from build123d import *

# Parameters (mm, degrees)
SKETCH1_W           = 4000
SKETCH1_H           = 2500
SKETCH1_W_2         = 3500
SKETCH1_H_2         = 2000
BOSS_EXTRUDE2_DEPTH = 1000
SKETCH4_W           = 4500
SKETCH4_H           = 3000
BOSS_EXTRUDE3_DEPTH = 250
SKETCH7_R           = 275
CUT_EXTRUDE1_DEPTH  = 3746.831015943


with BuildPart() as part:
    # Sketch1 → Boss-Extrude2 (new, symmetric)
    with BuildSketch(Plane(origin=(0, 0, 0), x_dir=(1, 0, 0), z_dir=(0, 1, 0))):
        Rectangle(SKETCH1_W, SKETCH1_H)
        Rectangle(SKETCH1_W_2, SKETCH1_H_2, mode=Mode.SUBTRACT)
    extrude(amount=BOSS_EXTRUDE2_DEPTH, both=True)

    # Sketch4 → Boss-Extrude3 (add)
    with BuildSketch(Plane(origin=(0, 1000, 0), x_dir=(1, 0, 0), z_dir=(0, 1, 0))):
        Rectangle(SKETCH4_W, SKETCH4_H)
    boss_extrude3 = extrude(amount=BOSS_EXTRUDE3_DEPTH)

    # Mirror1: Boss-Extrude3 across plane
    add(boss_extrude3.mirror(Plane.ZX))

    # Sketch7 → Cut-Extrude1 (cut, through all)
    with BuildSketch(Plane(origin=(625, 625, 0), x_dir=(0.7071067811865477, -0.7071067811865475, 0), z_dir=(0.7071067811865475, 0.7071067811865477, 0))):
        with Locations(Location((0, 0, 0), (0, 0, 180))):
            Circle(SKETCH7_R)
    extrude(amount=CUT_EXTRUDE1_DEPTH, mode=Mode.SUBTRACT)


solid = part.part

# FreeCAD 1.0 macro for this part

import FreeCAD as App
import Part
import Sketcher

V = App.Vector


def add_polygon(sketch, points):
    """Adds a closed chain of lines whose ends are joined by coincident constraints."""
    first, n = sketch.GeometryCount, len(points)
    for a, b in zip(points, points[1:] + points[:1]):
        sketch.addGeometry(Part.LineSegment(App.Vector(*a, 0), App.Vector(*b, 0)), False)
    for i in range(n):
        sketch.addConstraint(Sketcher.Constraint("Coincident", first + i, 2, first + (i + 1) % n, 1))

doc = App.newDocument("Part")
body = doc.addObject("PartDesign::Body", "Body")

# Sketch on XZ plane
sketch1 = body.newObject("Sketcher::SketchObject", "Sketch")
sketch1.AttachmentSupport = (doc.getObject("XZ_Plane"), [""])
sketch1.MapMode = "FlatFace"
add_polygon(sketch1, [(-2000, -1250), (-2000, 1250), (2000, 1250), (2000, -1250)])  # lines 0-3
add_polygon(sketch1, [(1750, 1000), (-1750, 1000), (-1750, -1000), (1750, -1000)])  # lines 4-7
sketch1.addConstraint(Sketcher.Constraint("Vertical", 0))
sketch1.addConstraint(Sketcher.Constraint("Horizontal", 1))
sketch1.addConstraint(Sketcher.Constraint("Vertical", 2))
sketch1.addConstraint(Sketcher.Constraint("Horizontal", 3))
sketch1.addConstraint(Sketcher.Constraint("Horizontal", 4))
sketch1.addConstraint(Sketcher.Constraint("Vertical", 5))
sketch1.addConstraint(Sketcher.Constraint("Horizontal", 6))
sketch1.addConstraint(Sketcher.Constraint("Vertical", 7))
sketch1.addConstraint(Sketcher.Constraint("Symmetric", 0, 2, 2, 2, -1, 1))
sketch1.addConstraint(Sketcher.Constraint("Symmetric", 4, 2, 6, 2, -1, 1))
sketch1.addConstraint(Sketcher.Constraint("DistanceX", 1, 1, 1, 2, 4000.0))
sketch1.addConstraint(Sketcher.Constraint("DistanceX", 4, 2, 4, 1, 3500.0))
sketch1.addConstraint(Sketcher.Constraint("DistanceY", 0, 1, 0, 2, 2500.0))
sketch1.addConstraint(Sketcher.Constraint("DistanceY", 5, 2, 5, 1, 2000.0))
pad1 = body.newObject("PartDesign::Pad", "Pad")
pad1.Profile = sketch1
pad1.Length = 2000
pad1.Midplane = True

# Sketch on XZ plane
sketch2 = body.newObject("Sketcher::SketchObject", "Sketch001")
sketch2.AttachmentSupport = (doc.getObject("XZ_Plane"), [""])
sketch2.MapMode = "FlatFace"
sketch2.AttachmentOffset = App.Placement(V(0, 0, -1000), App.Rotation())
add_polygon(sketch2, [(-2250, -1500), (-2250, 1500), (2250, 1500), (2250, -1500)])  # lines 0-3
sketch2.addConstraint(Sketcher.Constraint("Vertical", 0))
sketch2.addConstraint(Sketcher.Constraint("Horizontal", 1))
sketch2.addConstraint(Sketcher.Constraint("Vertical", 2))
sketch2.addConstraint(Sketcher.Constraint("Horizontal", 3))
sketch2.addConstraint(Sketcher.Constraint("Symmetric", 0, 2, 2, 2, -1, 1))
sketch2.addConstraint(Sketcher.Constraint("DistanceX", 1, 1, 1, 2, 4500.0))
sketch2.addConstraint(Sketcher.Constraint("DistanceY", 0, 1, 0, 2, 3000.0))
pad2 = body.newObject("PartDesign::Pad", "Pad001")
pad2.Profile = sketch2
pad2.Length = 250
pad2.Reversed = True
doc.recompute()

mirrored = body.newObject("PartDesign::Mirrored", "Mirrored")
mirrored.Originals = [pad2]
mirrored.MirrorPlane = (doc.getObject("XZ_Plane"), [""])
body.Tip = mirrored

# Sketch on an angled plane
sketch3 = body.newObject("Sketcher::SketchObject", "Sketch002")
sketch3.Placement = App.Placement(V(625, 625, 0), App.Rotation(V(0.707106781, -0.707106781, 0), V(0, 0, -0.999999999), V(0.707106781, 0.707106781, 0), "ZXY"))
sketch3.addGeometry(Part.Circle(V(0, 0, 0), V(0, 0, 1), 275), False)
sketch3.addConstraint(Sketcher.Constraint("Coincident", 0, 3, -1, 1))
sketch3.addConstraint(Sketcher.Constraint("Diameter", 0, 550.0))
pocket1 = body.newObject("PartDesign::Pocket", "Pocket")
pocket1.Profile = sketch3
pocket1.Type = "ThroughAll"
pocket1.Reversed = True

doc.recompute()
